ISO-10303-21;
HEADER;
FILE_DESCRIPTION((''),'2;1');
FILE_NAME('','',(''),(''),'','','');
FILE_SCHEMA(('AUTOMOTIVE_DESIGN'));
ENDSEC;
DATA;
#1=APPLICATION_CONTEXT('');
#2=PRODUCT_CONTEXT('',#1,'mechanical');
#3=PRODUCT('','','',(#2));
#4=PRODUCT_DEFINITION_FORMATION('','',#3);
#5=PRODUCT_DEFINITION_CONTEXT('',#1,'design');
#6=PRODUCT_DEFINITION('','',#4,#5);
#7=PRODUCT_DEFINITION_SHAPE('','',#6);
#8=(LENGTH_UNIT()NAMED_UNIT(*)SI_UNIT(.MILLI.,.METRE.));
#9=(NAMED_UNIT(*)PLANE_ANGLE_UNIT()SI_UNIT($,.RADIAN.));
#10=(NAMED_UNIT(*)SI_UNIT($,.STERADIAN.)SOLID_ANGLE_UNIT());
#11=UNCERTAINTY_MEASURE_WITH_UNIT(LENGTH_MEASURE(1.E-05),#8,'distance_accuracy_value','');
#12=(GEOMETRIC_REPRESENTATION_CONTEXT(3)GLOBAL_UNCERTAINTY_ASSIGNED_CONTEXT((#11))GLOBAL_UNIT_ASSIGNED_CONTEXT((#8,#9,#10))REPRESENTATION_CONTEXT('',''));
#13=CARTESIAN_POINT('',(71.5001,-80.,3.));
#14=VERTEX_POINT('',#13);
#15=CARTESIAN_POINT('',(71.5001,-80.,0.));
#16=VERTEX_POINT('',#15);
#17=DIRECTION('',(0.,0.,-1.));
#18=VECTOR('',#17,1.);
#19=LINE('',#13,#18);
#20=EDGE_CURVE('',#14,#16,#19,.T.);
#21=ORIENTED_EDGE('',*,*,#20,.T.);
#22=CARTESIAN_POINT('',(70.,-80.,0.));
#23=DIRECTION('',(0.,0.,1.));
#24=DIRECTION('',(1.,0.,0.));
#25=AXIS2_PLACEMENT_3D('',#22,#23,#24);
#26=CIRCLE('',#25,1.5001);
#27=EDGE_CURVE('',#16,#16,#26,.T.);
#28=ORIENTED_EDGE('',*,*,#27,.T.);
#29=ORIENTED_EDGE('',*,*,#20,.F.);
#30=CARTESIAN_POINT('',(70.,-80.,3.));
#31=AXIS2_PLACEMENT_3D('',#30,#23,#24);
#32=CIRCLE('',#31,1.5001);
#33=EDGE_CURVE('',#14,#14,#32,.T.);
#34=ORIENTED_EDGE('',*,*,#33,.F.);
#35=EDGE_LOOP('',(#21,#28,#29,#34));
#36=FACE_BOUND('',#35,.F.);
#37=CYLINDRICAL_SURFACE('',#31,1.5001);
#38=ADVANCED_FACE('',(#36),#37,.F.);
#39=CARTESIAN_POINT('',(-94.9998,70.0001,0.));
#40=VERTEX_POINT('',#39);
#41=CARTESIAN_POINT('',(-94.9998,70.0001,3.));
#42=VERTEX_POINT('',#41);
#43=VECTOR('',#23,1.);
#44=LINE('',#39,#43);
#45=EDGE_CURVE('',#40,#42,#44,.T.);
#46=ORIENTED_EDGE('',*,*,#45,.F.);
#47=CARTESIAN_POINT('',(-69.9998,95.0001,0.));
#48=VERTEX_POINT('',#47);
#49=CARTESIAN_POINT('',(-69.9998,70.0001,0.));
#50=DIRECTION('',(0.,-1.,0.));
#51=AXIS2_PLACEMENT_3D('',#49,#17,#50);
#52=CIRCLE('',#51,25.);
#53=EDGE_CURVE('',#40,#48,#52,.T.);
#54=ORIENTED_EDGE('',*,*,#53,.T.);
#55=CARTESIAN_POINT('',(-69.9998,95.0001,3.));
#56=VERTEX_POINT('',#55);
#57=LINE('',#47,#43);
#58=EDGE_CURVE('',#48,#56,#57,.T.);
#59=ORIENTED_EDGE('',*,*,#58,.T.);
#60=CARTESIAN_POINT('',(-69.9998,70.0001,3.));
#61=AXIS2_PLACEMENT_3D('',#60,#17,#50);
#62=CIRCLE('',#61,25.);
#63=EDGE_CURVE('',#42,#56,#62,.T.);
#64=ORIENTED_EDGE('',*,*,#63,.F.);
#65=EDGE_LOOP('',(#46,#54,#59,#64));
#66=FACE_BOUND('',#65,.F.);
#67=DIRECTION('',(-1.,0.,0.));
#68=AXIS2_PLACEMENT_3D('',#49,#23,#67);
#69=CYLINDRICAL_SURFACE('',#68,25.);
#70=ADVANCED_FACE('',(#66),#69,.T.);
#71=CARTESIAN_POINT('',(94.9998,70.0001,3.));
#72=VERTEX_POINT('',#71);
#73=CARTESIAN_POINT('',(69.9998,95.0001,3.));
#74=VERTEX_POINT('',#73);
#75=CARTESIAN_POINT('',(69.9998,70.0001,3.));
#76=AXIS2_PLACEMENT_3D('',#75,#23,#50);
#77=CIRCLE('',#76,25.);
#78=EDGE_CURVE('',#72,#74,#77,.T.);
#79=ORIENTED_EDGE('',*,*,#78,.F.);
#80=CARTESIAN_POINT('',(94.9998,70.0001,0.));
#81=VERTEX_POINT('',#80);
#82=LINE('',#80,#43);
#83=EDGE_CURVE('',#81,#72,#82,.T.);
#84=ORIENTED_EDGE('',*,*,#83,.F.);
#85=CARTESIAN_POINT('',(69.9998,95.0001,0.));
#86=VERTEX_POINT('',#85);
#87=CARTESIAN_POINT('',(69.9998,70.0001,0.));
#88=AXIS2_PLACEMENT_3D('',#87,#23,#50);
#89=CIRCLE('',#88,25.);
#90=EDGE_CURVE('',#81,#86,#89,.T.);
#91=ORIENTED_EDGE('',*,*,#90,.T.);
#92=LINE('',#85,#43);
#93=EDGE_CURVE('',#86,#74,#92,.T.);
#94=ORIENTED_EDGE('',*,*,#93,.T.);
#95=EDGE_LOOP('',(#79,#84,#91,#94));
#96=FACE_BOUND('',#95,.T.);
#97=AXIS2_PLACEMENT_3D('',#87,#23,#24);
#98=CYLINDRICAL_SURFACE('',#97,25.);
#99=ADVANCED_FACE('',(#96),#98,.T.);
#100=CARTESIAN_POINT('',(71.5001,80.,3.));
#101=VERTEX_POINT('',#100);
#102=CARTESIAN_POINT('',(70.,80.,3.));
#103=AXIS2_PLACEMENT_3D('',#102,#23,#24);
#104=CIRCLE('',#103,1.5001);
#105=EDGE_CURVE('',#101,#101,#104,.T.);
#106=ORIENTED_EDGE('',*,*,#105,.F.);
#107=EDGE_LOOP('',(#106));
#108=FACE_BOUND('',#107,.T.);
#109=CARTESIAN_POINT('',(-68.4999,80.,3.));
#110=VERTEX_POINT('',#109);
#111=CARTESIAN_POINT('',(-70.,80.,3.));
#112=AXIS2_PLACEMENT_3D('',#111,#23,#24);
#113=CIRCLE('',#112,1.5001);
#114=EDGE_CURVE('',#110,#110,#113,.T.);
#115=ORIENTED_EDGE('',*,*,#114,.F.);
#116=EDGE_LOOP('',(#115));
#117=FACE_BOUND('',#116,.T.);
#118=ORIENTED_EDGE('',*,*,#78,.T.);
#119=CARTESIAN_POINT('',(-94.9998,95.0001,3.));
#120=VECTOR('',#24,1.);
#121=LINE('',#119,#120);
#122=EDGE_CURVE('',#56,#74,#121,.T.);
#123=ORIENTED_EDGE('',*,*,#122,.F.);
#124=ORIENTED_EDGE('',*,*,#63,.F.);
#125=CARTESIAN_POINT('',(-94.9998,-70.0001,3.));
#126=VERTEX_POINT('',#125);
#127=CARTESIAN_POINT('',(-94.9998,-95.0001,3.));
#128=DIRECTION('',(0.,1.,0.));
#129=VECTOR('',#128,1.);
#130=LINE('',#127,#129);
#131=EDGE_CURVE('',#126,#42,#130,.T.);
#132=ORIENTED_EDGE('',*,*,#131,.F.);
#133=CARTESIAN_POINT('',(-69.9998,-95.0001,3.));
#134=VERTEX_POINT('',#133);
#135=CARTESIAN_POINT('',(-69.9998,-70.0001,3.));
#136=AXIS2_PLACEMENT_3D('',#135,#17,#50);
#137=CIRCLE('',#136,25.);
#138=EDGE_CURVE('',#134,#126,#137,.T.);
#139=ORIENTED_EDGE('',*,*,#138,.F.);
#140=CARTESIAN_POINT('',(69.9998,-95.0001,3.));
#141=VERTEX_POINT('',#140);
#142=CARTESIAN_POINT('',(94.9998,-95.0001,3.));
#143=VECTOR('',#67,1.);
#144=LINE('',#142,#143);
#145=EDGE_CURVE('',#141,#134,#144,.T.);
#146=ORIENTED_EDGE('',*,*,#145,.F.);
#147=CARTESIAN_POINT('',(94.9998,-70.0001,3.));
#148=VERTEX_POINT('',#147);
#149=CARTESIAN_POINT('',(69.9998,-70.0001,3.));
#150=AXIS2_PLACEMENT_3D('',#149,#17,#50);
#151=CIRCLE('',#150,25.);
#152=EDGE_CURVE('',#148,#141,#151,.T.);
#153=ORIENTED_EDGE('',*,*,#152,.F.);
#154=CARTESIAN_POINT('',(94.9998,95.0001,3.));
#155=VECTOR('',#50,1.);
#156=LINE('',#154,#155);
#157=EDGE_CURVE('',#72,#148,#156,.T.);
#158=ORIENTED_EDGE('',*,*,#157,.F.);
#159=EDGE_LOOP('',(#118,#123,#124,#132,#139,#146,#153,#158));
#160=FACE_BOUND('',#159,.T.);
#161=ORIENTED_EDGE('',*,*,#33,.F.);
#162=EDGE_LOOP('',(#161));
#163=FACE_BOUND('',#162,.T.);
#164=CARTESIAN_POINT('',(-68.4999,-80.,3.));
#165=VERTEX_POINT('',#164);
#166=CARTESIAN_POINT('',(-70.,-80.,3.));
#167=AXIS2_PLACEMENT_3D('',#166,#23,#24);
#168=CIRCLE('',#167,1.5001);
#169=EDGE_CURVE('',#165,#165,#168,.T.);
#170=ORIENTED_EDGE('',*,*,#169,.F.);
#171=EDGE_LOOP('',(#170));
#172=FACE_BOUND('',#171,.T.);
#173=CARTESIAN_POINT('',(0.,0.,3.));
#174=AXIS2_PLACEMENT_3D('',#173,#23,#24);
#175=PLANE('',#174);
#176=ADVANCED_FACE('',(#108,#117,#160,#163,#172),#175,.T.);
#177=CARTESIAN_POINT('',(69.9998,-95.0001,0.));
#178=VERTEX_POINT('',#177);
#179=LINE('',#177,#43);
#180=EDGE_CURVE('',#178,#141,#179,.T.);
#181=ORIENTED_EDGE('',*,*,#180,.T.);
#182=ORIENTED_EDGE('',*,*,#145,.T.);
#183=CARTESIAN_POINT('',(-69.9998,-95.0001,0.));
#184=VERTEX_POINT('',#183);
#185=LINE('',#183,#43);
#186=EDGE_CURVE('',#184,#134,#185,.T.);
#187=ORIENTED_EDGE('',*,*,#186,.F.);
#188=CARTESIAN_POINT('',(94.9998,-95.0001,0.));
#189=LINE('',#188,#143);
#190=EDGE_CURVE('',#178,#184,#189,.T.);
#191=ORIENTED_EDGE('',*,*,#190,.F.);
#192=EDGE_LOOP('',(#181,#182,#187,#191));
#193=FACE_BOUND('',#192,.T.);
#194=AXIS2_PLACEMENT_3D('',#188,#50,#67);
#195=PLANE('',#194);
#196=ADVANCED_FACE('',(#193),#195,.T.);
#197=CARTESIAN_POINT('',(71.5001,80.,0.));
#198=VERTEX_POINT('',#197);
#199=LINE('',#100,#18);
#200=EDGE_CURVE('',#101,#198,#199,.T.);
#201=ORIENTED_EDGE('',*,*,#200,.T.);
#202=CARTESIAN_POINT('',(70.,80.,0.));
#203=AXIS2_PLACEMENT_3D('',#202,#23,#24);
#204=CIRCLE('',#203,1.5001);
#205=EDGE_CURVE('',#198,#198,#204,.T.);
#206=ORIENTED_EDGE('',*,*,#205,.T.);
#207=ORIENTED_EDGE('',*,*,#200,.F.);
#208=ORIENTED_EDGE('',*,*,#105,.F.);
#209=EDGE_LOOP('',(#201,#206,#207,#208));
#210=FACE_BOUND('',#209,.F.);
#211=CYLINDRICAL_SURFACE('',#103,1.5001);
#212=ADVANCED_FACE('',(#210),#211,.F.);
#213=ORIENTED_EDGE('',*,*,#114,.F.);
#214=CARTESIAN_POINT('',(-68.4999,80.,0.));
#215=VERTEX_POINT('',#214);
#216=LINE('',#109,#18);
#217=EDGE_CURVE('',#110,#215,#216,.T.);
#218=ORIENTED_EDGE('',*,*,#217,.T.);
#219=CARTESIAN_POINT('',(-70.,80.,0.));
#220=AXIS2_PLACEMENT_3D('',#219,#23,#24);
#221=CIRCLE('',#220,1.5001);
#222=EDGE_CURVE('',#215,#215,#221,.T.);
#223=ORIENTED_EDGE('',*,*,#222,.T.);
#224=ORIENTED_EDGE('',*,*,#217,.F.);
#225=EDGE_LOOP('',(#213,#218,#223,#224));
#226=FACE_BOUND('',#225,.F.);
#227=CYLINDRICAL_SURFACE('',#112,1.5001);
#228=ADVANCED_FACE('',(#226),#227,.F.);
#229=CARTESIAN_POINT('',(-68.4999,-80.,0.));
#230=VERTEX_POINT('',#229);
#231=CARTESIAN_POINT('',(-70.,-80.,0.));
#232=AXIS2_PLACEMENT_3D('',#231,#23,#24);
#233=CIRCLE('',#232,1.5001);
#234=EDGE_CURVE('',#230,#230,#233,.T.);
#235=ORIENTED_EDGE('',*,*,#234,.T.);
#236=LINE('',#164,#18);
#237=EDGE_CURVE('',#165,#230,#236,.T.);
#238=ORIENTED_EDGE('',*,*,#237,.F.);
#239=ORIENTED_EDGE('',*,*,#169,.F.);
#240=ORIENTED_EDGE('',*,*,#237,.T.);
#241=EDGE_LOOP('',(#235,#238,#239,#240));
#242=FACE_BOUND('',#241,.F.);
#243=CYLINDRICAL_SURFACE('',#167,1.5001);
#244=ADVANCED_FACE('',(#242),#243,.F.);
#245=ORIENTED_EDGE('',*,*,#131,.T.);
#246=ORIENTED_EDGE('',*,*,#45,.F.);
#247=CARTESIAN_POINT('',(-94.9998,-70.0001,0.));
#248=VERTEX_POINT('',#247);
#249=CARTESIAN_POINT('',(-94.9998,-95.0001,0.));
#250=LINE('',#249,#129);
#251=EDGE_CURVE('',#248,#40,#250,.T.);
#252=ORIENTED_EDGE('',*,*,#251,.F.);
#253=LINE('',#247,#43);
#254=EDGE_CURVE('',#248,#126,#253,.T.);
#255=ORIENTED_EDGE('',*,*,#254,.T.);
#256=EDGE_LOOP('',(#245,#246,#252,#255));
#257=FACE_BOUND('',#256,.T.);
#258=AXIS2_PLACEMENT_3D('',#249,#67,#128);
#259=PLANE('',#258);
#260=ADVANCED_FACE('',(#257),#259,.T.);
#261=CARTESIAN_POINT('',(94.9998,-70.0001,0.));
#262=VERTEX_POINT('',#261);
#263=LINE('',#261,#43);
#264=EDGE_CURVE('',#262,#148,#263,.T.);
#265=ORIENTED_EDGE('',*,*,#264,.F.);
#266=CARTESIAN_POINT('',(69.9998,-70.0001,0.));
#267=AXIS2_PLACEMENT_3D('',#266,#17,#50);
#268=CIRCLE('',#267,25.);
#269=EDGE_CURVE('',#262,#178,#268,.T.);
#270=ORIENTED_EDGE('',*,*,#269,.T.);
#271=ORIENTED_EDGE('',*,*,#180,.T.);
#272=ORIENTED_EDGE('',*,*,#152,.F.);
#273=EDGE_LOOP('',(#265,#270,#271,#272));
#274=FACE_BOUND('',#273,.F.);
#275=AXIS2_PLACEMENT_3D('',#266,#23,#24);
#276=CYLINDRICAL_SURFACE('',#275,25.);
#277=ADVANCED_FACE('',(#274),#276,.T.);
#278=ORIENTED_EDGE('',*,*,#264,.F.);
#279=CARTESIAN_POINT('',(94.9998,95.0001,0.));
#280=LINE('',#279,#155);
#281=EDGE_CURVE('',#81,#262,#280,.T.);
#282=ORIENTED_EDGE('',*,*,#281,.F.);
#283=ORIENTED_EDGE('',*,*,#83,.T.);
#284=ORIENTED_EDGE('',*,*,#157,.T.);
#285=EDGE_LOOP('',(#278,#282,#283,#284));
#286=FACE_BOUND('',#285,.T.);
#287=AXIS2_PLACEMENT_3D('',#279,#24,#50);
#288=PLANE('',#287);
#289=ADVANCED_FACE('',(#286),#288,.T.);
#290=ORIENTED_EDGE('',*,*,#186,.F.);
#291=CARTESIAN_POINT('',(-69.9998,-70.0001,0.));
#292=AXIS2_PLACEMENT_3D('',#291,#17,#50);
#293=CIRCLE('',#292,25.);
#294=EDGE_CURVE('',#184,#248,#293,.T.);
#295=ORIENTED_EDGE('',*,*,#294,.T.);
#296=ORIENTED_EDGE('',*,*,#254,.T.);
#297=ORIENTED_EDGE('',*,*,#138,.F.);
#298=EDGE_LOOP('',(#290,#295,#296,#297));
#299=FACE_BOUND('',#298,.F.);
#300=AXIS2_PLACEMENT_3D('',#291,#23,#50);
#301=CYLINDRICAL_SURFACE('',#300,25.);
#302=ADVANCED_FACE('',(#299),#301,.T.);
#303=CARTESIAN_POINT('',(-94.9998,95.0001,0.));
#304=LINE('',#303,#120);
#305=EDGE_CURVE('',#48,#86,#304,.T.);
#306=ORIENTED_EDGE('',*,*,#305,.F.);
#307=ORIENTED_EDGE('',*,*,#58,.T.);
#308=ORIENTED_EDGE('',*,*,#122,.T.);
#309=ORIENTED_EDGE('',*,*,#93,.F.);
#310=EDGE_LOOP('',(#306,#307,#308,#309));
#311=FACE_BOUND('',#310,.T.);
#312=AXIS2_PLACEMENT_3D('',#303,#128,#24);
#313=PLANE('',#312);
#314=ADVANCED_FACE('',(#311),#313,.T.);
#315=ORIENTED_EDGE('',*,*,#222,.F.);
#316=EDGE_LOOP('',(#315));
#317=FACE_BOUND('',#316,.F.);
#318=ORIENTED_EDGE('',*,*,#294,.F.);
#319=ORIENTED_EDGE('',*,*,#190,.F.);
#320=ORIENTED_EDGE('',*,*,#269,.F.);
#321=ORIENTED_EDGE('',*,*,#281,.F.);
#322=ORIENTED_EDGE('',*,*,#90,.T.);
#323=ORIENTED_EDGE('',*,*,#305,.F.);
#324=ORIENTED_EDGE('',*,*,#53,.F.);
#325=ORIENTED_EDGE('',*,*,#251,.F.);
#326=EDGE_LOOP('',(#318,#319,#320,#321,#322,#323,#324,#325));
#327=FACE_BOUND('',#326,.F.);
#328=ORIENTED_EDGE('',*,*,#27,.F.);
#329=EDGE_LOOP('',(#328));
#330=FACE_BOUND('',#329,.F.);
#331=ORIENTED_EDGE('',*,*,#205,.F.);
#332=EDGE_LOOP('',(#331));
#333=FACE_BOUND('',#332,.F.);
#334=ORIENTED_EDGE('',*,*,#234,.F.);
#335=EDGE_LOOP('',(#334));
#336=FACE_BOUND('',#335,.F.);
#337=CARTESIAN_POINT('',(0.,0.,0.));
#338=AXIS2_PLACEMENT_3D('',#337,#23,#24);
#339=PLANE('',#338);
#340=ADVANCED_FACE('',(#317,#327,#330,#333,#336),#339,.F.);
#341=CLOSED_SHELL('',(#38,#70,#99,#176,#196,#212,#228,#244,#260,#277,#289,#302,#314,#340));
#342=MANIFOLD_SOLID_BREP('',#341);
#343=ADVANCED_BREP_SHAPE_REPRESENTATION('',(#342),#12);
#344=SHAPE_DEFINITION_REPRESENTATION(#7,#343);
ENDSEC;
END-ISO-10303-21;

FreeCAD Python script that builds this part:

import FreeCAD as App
import Part
import Sketcher

V = App.Vector


def edges_at(feature, points):
    """Names of the edges that pass closest to the given points."""
    edges = feature.Shape.Edges
    near = lambda p: min(range(len(edges)), key=lambda i: edges[i].distToShape(Part.Vertex(*p))[0])
    return sorted({f"Edge{near(p) + 1}" for p in points})


def add_polygon(sketch, points):
    """Adds a closed chain of lines whose ends are joined by coincident constraints."""
    first, n = sketch.GeometryCount, len(points)
    for a, b in zip(points, points[1:] + points[:1]):
        sketch.addGeometry(Part.LineSegment(App.Vector(*a, 0), App.Vector(*b, 0)), False)
    for i in range(n):
        sketch.addConstraint(Sketcher.Constraint("Coincident", first + i, 2, first + (i + 1) % n, 1))

doc = App.newDocument("Part")
body = doc.addObject("PartDesign::Body", "Body")

sketch1 = body.newObject("Sketcher::SketchObject", "Sketch")
sketch1.AttachmentSupport = (doc.getObject("XY_Plane"), [""])
sketch1.MapMode = "FlatFace"
add_polygon(sketch1, [(-94.9998, -95.0001), (94.9998, -95.0001), (94.9998, 95.0001), (-94.9998, 95.0001)])
sketch1.addConstraint([
    Sketcher.Constraint("Horizontal", 0),
    Sketcher.Constraint("Vertical", 1),
    Sketcher.Constraint("Horizontal", 2),
    Sketcher.Constraint("Vertical", 3),
    Sketcher.Constraint("Symmetric", 0, 2, 2, 2, -1, 1),
    Sketcher.Constraint("DistanceY", 0, 2, -1, 1, 95.0),
    Sketcher.Constraint("DistanceX", 0, 1, 0, 2, 189.9996),
])
pad1 = body.newObject("PartDesign::Pad", "Pad")
pad1.Profile = sketch1
pad1.Length = 3

sketch2 = body.newObject("Sketcher::SketchObject", "Sketch001")
sketch2.AttachmentSupport = (doc.getObject("XY_Plane"), [""])
sketch2.MapMode = "FlatFace"
sketch2.AttachmentOffset = App.Placement(V(0, 0, 3), App.Rotation())
sketch2.addGeometry([
    Part.Circle(V(70, 80, 0), V(0, 0, 1), 1.5001),
    Part.Circle(V(70, -80, 0), V(0, 0, 1), 1.5001),
    Part.Circle(V(-70, 80, 0), V(0, 0, 1), 1.5001),
    Part.Circle(V(-70, -80, 0), V(0, 0, 1), 1.5001),
], False)
sketch2.addConstraint([
    Sketcher.Constraint("Equal", 0, 1),
    Sketcher.Constraint("Equal", 1, 2),
    Sketcher.Constraint("Equal", 2, 3),
    Sketcher.Constraint("Symmetric", 1, 3, 2, 3, -1, 1),
    Sketcher.Constraint("Symmetric", 0, 3, 3, 3, -1, 1),
    Sketcher.Constraint("Symmetric", 0, 3, 2, 3, -2),
    Sketcher.Constraint("DistanceX", -1, 1, 0, 3, 70.0),
    Sketcher.Constraint("DistanceY", -1, 1, 0, 3, 80.0),
    Sketcher.Constraint("Diameter", 0, 3.0002),
])
pocket1 = body.newObject("PartDesign::Pocket", "Pocket")
pocket1.Profile = sketch2
pocket1.Length = 3
doc.recompute()

fillet = body.newObject("PartDesign::Fillet", "Fillet")
fillet.Base = (pocket1, edges_at(pocket1, [(95, 95, 1.5)]))
fillet.Radius = 25
doc.recompute()

fillet2 = body.newObject("PartDesign::Fillet", "Fillet001")
fillet2.Base = (fillet, edges_at(fillet, [(95, -95, 1.5)]))
fillet2.Radius = 25
doc.recompute()

fillet3 = body.newObject("PartDesign::Fillet", "Fillet002")
fillet3.Base = (fillet2, edges_at(fillet2, [(-95, -95, 1.5)]))
fillet3.Radius = 25
doc.recompute()

fillet4 = body.newObject("PartDesign::Fillet", "Fillet003")
fillet4.Base = (fillet3, edges_at(fillet3, [(-95, 95, 1.5)]))
fillet4.Radius = 25

doc.recompute()
